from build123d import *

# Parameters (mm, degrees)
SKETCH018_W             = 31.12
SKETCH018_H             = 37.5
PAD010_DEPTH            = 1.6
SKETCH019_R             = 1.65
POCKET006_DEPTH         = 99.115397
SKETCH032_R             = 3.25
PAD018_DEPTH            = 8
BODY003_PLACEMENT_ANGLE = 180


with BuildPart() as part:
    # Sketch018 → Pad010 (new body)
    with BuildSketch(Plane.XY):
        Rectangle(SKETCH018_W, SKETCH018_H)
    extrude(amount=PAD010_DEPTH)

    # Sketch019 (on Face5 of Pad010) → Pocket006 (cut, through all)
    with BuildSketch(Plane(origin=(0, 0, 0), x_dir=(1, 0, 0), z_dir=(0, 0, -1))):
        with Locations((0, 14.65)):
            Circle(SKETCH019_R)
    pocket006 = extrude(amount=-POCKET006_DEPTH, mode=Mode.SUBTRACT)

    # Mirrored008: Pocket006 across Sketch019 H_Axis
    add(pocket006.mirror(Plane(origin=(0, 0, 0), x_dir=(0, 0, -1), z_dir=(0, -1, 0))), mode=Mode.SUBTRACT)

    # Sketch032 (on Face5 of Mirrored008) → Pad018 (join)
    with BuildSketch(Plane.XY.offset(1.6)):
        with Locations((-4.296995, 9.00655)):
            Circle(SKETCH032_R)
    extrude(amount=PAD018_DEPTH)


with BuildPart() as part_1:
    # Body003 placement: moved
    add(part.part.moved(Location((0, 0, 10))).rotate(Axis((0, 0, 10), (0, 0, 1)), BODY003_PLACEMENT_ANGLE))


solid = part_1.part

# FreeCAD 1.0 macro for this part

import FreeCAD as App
import Part
import Sketcher


def add_polygon(sketch, points):
    """Adds a closed chain of lines whose ends are joined by coincident constraints."""
    first, n = sketch.GeometryCount, len(points)
    for a, b in zip(points, points[1:] + points[:1]):
        sketch.addGeometry(Part.LineSegment(App.Vector(*a, 0), App.Vector(*b, 0)), False)
    for i in range(n):
        sketch.addConstraint(Sketcher.Constraint("Coincident", first + i, 2, first + (i + 1) % n, 1))

doc = App.newDocument("Part")
body = doc.addObject("PartDesign::Body", "Body")

# Sketch on XY plane
sketch1 = body.newObject("Sketcher::SketchObject", "Sketch")
sketch1.AttachmentSupport = (doc.getObject("XY_Plane"), [""])
sketch1.MapMode = "FlatFace"
add_polygon(sketch1, [(-15.56, 18.75), (-15.56, -18.75), (15.56, -18.75), (15.56, 18.75)])  # lines 0-3
sketch1.addConstraint([
    Sketcher.Constraint("Vertical", 0),
    Sketcher.Constraint("Horizontal", 1),
    Sketcher.Constraint("Vertical", 2),
    Sketcher.Constraint("Horizontal", 3),
    Sketcher.Constraint("Symmetric", 0, 2, 2, 2, -1, 1),
    Sketcher.Constraint("DistanceY", 0, 2, 0, 1, 37.5),
    Sketcher.Constraint("DistanceX", 1, 1, 1, 2, 31.12),
])
pad1 = body.newObject("PartDesign::Pad", "Pad")
pad1.Profile = sketch1
pad1.Length = 1.6

# Sketch on XY plane
sketch2 = body.newObject("Sketcher::SketchObject", "Sketch001")
sketch2.AttachmentSupport = (doc.getObject("XY_Plane"), [""])
sketch2.MapMode = "FlatFace"
sketch2.addGeometry(Part.Circle(App.Vector(0, -14.65, 0), App.Vector(0, 0, 1), 1.65), False)
sketch2.addConstraint([
    Sketcher.Constraint("PointOnObject", 0, 3, -2),
    Sketcher.Constraint("Diameter", 0, 3.3),
    Sketcher.Constraint("DistanceY", 0, 3, -1, 1, 14.65),
])
pocket1 = body.newObject("PartDesign::Pocket", "Pocket")
pocket1.Profile = sketch2
pocket1.Type = "ThroughAll"
pocket1.Reversed = True
doc.recompute()

mirrored = body.newObject("PartDesign::Mirrored", "Mirrored")
mirrored.Originals = [pocket1]
mirrored.MirrorPlane = (doc.getObject("XZ_Plane"), [""])
body.Tip = mirrored

# Sketch on XY plane
sketch3 = body.newObject("Sketcher::SketchObject", "Sketch002")
sketch3.AttachmentSupport = (doc.getObject("XY_Plane"), [""])
sketch3.MapMode = "FlatFace"
sketch3.AttachmentOffset = App.Placement(App.Vector(0, 0, 1.6), App.Rotation())
sketch3.addGeometry(Part.Circle(App.Vector(-4.296995, 9.00655, 0), App.Vector(0, 0, 1), 3.25), False)
sketch3.addConstraint([
    Sketcher.Constraint("Diameter", 0, 6.5),
    Sketcher.Constraint("DistanceY", -1, 1, 0, 3, 9.00655),
    Sketcher.Constraint("DistanceX", 0, 3, -1, 1, 4.296995),
])
pad2 = body.newObject("PartDesign::Pad", "Pad001")
pad2.Profile = sketch3
pad2.Length = 8
body2 = doc.addObject("PartDesign::Body", "Body001")
doc.recompute()

body.Placement = App.Placement(App.Vector(0, 0, 10), App.Rotation(App.Vector(0, 0, 1), 180))
boolean = body2.newObject("PartDesign::Boolean", "Boolean")
boolean.Type = "Fuse"
boolean.addObjects([body])

doc.recompute()
